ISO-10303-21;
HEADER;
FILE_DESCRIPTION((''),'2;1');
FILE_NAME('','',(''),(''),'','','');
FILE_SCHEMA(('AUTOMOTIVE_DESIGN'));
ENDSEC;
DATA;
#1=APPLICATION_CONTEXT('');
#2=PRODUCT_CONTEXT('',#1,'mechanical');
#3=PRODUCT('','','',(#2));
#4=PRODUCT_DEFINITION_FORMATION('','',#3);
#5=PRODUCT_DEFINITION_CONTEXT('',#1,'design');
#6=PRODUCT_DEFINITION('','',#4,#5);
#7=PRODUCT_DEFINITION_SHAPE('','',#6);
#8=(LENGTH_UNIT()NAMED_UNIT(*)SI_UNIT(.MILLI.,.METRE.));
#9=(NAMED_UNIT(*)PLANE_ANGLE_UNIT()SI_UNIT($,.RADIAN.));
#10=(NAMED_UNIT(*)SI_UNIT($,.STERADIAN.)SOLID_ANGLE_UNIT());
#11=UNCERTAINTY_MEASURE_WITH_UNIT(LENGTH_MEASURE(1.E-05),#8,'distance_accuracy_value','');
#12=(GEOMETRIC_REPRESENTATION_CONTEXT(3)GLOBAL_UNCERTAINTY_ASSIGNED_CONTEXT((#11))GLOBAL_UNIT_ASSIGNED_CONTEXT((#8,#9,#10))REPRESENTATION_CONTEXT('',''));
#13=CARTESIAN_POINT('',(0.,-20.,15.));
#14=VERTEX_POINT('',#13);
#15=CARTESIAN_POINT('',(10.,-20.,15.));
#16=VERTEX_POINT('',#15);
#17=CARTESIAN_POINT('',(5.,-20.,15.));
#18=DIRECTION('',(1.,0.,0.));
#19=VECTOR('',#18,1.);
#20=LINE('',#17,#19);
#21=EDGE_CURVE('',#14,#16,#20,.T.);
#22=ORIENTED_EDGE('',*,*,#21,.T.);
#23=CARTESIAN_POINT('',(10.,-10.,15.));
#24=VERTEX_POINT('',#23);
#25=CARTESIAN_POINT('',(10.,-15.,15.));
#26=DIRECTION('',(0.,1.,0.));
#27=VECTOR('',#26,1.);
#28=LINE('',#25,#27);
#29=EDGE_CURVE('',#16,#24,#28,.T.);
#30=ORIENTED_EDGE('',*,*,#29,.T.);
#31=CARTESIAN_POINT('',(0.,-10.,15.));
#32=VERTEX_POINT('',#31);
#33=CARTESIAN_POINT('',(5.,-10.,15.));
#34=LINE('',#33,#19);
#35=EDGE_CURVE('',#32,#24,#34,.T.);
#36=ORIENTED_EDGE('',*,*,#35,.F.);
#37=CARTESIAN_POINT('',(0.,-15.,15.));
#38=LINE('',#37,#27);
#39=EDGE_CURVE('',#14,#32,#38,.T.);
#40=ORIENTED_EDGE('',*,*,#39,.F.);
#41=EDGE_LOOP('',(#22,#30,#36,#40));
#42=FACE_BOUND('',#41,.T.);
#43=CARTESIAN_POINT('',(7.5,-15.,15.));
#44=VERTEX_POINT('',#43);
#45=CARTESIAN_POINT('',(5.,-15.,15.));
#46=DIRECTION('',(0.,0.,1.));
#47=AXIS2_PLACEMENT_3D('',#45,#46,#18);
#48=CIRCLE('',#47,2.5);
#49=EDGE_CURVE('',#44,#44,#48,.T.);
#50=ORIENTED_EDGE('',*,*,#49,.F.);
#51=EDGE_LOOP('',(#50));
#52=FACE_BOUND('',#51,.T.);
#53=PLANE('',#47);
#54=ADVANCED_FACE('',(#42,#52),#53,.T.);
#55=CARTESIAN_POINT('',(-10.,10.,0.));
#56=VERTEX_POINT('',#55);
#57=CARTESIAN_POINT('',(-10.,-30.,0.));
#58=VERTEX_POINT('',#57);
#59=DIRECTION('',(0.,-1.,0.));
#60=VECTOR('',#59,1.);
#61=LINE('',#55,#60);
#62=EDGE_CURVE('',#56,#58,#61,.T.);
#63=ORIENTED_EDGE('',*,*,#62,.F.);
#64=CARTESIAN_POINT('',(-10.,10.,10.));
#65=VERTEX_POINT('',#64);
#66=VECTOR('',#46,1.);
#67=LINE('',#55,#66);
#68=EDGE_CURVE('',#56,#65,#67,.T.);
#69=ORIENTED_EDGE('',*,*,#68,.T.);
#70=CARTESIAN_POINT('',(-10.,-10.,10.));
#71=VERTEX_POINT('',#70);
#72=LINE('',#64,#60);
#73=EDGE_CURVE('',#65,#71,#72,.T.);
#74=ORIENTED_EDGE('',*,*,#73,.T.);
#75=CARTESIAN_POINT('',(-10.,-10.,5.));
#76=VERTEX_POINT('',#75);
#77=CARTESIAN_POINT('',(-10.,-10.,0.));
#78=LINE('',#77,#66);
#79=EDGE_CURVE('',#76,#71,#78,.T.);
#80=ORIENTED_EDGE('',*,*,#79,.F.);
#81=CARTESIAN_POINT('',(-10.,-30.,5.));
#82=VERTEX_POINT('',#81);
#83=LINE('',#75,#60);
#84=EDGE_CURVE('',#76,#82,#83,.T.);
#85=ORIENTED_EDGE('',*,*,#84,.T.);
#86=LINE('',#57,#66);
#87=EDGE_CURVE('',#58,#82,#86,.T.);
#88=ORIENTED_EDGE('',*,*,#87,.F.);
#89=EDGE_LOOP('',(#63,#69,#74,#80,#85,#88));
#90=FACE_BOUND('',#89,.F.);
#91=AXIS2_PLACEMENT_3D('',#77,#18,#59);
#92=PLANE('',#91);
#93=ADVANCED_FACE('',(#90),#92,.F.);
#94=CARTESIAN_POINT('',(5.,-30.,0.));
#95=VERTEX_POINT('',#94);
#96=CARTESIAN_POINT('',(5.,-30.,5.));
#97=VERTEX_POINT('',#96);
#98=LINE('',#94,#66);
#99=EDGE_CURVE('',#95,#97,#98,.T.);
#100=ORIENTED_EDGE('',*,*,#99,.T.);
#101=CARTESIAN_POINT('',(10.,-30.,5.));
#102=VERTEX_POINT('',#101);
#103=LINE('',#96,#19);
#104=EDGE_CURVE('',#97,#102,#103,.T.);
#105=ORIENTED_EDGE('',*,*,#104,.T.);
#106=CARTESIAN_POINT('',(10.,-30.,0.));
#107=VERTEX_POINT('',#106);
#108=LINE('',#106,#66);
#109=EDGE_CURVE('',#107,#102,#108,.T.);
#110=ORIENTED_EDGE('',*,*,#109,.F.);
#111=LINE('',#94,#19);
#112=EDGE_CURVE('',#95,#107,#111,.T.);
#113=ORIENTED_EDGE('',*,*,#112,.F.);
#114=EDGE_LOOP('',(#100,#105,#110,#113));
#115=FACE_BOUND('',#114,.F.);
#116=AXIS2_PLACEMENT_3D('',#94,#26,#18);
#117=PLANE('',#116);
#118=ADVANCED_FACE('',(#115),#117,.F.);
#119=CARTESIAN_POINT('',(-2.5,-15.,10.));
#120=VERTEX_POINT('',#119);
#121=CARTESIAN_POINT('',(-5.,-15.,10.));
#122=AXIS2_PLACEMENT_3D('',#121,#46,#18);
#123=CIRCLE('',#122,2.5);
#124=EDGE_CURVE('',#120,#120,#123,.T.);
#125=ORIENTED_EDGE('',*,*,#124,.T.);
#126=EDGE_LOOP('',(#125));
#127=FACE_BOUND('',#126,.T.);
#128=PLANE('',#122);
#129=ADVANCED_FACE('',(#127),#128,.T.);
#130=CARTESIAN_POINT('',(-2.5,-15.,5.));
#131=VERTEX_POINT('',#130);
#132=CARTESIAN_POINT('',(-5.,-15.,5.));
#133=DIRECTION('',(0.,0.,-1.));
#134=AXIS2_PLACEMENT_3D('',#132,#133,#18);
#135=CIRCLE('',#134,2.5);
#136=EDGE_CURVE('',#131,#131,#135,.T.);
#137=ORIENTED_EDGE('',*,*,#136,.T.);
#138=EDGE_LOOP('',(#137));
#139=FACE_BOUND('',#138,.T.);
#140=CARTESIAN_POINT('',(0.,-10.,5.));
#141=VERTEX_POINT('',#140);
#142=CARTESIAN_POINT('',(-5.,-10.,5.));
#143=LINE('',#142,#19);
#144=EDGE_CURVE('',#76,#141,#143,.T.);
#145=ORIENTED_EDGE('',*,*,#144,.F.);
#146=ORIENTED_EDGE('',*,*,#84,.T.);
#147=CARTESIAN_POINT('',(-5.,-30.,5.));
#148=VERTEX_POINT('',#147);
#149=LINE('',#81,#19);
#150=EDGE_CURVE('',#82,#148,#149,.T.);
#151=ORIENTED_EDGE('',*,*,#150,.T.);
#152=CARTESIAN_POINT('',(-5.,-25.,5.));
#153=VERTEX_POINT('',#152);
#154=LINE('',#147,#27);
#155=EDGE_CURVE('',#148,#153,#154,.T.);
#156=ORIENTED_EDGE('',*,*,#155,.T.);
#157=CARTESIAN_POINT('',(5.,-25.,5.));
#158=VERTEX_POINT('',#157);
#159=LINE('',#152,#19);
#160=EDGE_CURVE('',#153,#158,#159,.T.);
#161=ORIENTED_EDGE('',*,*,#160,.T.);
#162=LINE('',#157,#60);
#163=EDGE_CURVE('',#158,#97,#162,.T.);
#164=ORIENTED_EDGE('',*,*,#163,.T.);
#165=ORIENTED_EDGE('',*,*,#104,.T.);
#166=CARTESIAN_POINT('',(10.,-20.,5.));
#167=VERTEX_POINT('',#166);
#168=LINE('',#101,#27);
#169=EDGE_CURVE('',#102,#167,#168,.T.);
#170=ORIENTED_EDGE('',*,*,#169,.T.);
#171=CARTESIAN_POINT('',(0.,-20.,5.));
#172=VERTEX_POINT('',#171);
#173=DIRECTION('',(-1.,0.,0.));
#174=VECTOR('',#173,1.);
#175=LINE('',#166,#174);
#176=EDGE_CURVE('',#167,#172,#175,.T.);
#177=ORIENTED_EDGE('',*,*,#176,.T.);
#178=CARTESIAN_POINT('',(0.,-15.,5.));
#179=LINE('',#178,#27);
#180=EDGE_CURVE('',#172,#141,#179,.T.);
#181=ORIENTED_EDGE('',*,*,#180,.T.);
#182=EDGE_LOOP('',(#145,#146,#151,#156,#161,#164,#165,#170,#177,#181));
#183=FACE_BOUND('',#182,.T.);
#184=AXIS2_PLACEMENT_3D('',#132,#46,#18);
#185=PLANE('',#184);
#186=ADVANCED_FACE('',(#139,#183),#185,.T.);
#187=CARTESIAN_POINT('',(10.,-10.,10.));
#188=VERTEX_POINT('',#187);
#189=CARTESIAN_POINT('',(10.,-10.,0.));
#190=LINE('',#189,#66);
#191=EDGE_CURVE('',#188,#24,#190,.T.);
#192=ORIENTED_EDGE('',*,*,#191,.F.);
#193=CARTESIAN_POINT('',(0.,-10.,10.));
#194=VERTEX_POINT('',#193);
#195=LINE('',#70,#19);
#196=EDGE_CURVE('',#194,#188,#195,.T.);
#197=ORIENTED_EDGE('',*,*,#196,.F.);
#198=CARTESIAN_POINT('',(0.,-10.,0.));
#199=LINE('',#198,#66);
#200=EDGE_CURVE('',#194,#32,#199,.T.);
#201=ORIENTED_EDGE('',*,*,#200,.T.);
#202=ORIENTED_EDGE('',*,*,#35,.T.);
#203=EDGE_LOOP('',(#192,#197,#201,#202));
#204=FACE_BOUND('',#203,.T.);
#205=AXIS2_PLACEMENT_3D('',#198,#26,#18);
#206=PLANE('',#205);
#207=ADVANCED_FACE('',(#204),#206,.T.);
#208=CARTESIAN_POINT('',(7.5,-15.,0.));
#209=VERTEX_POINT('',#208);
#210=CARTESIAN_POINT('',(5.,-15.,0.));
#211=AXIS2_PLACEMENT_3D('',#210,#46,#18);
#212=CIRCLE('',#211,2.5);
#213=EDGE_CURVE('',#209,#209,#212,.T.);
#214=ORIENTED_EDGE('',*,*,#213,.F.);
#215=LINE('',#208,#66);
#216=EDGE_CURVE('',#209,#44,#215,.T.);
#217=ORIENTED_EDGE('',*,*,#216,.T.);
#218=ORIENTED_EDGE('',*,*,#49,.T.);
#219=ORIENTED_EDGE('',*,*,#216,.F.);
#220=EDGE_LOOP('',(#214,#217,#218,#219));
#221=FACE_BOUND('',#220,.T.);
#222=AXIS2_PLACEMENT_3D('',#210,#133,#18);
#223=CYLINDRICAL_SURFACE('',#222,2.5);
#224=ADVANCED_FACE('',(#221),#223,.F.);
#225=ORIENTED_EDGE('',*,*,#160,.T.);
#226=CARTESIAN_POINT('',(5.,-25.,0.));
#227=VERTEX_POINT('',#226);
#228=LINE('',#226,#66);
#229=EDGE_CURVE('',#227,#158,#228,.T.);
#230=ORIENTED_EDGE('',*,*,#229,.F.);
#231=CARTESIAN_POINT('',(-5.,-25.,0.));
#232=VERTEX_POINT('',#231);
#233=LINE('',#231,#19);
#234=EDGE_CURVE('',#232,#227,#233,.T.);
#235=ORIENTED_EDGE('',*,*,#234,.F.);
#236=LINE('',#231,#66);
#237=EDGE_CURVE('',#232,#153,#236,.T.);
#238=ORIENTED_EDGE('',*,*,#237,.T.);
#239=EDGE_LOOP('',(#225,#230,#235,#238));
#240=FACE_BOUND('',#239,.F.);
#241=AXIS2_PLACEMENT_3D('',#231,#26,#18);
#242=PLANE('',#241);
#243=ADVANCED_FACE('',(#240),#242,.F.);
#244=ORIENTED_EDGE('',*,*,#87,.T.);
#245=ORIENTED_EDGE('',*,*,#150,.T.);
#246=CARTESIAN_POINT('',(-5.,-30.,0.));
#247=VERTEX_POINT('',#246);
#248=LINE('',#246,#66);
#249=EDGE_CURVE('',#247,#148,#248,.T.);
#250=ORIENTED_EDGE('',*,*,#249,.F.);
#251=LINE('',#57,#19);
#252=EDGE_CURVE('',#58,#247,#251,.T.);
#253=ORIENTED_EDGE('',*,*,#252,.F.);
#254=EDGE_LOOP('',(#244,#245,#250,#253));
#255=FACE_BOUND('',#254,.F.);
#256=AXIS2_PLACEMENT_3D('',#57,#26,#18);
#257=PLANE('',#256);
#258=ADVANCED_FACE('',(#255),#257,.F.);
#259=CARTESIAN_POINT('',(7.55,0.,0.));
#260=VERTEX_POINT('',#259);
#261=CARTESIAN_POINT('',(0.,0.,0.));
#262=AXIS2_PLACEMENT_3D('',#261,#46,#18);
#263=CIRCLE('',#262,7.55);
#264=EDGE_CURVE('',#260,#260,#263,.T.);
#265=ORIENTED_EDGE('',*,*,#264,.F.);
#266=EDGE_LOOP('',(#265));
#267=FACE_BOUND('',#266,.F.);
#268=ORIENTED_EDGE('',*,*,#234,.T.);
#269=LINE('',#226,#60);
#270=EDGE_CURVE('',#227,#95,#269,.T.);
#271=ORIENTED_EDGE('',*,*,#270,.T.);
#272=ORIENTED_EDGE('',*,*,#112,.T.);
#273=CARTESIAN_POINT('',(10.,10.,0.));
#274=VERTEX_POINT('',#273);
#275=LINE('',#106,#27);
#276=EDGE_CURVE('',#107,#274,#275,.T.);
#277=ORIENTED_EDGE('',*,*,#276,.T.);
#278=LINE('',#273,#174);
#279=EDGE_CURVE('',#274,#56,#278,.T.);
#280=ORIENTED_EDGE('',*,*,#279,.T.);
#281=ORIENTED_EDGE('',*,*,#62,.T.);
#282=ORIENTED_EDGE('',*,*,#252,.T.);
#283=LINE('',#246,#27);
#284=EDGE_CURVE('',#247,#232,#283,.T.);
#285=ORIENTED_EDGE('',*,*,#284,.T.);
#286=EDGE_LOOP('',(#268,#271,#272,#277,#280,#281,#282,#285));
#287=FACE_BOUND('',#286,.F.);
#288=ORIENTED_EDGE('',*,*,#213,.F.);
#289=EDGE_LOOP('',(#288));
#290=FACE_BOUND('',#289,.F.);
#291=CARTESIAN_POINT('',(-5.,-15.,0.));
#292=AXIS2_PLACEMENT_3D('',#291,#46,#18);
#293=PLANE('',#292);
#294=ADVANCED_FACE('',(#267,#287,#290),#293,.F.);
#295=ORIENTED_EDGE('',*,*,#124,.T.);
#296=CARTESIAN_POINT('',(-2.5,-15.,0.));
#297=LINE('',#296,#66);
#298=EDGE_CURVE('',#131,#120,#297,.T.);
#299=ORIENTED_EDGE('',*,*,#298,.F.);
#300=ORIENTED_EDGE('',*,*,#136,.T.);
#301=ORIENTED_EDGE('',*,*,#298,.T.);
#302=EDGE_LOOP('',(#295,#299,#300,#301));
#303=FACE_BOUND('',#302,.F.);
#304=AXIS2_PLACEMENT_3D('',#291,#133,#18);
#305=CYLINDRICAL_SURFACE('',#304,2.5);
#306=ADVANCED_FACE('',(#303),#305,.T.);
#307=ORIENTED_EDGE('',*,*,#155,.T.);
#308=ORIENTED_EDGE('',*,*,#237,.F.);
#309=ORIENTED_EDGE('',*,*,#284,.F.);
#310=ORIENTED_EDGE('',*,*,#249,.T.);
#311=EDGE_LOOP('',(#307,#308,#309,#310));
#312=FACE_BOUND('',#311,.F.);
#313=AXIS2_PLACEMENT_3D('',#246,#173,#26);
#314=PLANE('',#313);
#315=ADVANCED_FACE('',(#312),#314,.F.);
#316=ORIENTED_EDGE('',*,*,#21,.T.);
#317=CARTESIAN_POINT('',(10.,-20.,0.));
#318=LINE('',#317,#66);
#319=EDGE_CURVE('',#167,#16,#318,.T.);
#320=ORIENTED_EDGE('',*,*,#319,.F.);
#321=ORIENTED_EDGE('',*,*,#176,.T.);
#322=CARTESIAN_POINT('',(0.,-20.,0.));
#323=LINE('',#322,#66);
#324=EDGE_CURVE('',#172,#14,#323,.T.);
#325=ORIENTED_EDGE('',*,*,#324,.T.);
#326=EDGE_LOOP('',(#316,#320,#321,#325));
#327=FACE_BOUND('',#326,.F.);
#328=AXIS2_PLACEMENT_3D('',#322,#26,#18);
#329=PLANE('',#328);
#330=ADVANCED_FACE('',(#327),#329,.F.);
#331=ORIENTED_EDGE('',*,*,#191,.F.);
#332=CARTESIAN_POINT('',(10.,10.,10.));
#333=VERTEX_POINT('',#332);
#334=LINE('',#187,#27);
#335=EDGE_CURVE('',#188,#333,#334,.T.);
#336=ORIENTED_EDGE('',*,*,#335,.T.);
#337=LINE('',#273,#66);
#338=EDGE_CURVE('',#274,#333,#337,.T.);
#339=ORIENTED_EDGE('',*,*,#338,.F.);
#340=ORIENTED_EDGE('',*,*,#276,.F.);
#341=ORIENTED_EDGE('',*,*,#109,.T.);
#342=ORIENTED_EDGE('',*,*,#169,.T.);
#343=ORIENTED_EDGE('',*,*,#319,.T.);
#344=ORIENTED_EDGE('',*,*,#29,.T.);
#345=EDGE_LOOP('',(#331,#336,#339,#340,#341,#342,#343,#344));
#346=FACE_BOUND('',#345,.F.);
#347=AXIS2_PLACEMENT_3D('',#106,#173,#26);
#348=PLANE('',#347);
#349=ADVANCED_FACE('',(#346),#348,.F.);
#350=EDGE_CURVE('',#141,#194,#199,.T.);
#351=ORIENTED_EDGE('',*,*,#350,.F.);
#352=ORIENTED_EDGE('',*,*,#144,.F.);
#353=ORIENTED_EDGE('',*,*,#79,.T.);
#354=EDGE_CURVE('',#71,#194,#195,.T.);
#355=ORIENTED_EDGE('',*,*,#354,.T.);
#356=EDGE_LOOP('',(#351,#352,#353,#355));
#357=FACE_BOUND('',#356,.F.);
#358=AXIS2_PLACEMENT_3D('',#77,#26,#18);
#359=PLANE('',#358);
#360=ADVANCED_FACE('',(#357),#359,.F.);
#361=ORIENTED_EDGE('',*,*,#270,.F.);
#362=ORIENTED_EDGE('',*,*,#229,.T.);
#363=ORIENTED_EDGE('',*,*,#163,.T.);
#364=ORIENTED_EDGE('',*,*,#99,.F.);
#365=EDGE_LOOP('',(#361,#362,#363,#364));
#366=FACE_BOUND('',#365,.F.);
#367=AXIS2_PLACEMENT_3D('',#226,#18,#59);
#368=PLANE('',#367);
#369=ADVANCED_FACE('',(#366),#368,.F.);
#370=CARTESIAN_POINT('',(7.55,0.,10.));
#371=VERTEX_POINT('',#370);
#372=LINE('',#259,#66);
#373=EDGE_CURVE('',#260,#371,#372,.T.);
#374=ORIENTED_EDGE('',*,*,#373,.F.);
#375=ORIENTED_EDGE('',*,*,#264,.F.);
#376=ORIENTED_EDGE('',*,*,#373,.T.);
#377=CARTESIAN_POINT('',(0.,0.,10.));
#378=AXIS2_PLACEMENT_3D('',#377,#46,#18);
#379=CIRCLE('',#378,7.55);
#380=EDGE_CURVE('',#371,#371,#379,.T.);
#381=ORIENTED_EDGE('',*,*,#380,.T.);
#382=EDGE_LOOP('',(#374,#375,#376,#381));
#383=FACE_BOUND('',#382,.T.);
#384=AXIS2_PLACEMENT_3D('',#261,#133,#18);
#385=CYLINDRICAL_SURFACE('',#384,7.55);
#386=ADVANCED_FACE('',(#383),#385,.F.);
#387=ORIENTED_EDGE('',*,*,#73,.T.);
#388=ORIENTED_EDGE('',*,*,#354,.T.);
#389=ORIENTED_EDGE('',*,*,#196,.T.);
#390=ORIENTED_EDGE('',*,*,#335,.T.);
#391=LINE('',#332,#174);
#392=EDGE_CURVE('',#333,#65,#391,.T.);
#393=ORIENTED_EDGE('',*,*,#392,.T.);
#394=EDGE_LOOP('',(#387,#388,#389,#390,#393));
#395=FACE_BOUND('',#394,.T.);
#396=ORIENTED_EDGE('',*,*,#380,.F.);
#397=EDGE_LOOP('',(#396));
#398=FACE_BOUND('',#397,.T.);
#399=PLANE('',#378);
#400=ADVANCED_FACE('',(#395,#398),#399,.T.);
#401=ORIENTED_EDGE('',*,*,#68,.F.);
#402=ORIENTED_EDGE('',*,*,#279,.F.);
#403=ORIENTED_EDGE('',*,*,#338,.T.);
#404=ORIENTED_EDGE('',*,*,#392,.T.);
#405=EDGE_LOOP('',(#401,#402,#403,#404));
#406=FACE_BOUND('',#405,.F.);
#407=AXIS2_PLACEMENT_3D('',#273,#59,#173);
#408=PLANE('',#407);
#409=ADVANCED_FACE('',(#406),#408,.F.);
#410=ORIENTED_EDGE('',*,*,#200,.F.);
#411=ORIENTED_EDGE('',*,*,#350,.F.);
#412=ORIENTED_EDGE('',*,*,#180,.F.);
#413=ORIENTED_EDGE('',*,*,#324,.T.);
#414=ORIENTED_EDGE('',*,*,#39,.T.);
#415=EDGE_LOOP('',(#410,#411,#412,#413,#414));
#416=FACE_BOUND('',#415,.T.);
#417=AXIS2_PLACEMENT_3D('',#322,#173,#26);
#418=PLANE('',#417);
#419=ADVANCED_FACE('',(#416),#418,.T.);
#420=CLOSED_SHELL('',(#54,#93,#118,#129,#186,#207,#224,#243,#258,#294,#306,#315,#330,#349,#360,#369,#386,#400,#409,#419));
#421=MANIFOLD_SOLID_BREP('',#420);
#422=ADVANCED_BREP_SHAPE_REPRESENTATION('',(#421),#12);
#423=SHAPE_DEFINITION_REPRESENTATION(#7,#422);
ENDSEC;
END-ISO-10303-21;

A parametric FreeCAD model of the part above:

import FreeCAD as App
import Part
import Sketcher
from FreeCAD import Vector
Q = App.Units.Quantity

doc = App.newDocument("Part")
body = doc.addObject("PartDesign::Body", "Body")

# Sketch on XY plane
sketch1 = body.newObject("Sketcher::SketchObject", "Sketch")
sketch1.AttachmentSupport = (doc.getObject("XY_Plane"), [""])
sketch1.MapMode = "FlatFace"
sketch1.addGeometry([
    Part.LineSegment(Vector(10, -10, 0), Vector(10, 10, 0)),  # 0
    Part.LineSegment(Vector(10, 10, 0), Vector(-10, 10, 0)),  # 1
    Part.LineSegment(Vector(-10, 10, 0), Vector(-10, -10, 0)),  # 2
    Part.LineSegment(Vector(-10, -10, 0), Vector(10, -10, 0)),  # 3
    Part.Circle(Vector(0, 0, 0), Vector(0, 0, 1), 8),  # 4
], False)
sketch1.addConstraint([
    Sketcher.Constraint("Coincident", 0, 2, 1, 1),
    Sketcher.Constraint("Coincident", 1, 2, 2, 1),
    Sketcher.Constraint("Coincident", 2, 2, 3, 1),
    Sketcher.Constraint("Coincident", 3, 2, 0, 1),
    Sketcher.Constraint("Vertical", 0),
    Sketcher.Constraint("Horizontal", 1),
    Sketcher.Constraint("Vertical", 2),
    Sketcher.Constraint("Horizontal", 3),
    Sketcher.Constraint("Coincident", 4, 3, -1, 1),
    Sketcher.Constraint("Symmetric", 0, 2, 2, 2, -1, 1),
    Sketcher.Constraint("Equal", 3, 0),
    Sketcher.Constraint("Diameter", 4, Q("15.1 mm")),
    Sketcher.Constraint("DistanceX", 1, 2, 1, 1, Q("20 mm")),
])
pad1 = body.newObject("PartDesign::Pad", "Pad")
pad1.Profile = sketch1
pad1.Length = 10

# Sketch on XY plane
sketch2 = body.newObject("Sketcher::SketchObject", "Sketch001")
sketch2.AttachmentSupport = (doc.getObject("XY_Plane"), [""])
sketch2.MapMode = "FlatFace"
sketch2.addGeometry([
    Part.LineSegment(Vector(-10, -10, 0), Vector(-10, -30, 0)),  # 0
    Part.LineSegment(Vector(-10, -30, 0), Vector(-5, -30, 0)),  # 1
    Part.LineSegment(Vector(-5, -30, 0), Vector(-5, -25, 0)),  # 2
    Part.LineSegment(Vector(-5, -25, 0), Vector(5, -25, 0)),  # 3
    Part.LineSegment(Vector(5, -25, 0), Vector(5, -30, 0)),  # 4
    Part.LineSegment(Vector(5, -30, 0), Vector(10, -30, 0)),  # 5
    Part.LineSegment(Vector(10, -30, 0), Vector(10, -20, 0)),  # 6
    Part.LineSegment(Vector(10, -20, 0), Vector(0, -20, 0)),  # 7
    Part.LineSegment(Vector(0, -20, 0), Vector(0, -10, 0)),  # 8
    Part.LineSegment(Vector(0, -10, 0), Vector(-10, -10, 0)),  # 9
], False)
sketch2.addConstraint([
    Sketcher.Constraint("Coincident", 0, 2, 1, 1),
    Sketcher.Constraint("Coincident", 1, 2, 2, 1),
    Sketcher.Constraint("Coincident", 2, 2, 3, 1),
    Sketcher.Constraint("Coincident", 3, 2, 4, 1),
    Sketcher.Constraint("Coincident", 4, 2, 5, 1),
    Sketcher.Constraint("Coincident", 5, 2, 6, 1),
    Sketcher.Constraint("Coincident", 6, 2, 7, 1),
    Sketcher.Constraint("Coincident", 7, 2, 8, 1),
    Sketcher.Constraint("Coincident", 8, 2, 9, 1),
    Sketcher.Constraint("Coincident", 9, 2, 0, 1),
    Sketcher.Constraint("Vertical", 0),
    Sketcher.Constraint("Horizontal", 1),
    Sketcher.Constraint("Vertical", 2),
    Sketcher.Constraint("Horizontal", 3),
    Sketcher.Constraint("Vertical", 4),
    Sketcher.Constraint("Horizontal", 5),
    Sketcher.Constraint("Vertical", 6),
    Sketcher.Constraint("Horizontal", 7),
    Sketcher.Constraint("Vertical", 8),
    Sketcher.Constraint("Horizontal", 9),
    Sketcher.Constraint("Symmetric", 1, 2, 4, 2, -2),
    Sketcher.Constraint("PointOnObject", 7, 2, -2),
    Sketcher.Constraint("Equal", 1, 5),
    Sketcher.Constraint("Equal", 3, 7),
    Sketcher.Constraint("Equal", 5, 2),
    Sketcher.Constraint("Equal", 9, 6),
    Sketcher.Constraint("Equal", 6, 8),
    Sketcher.Constraint("DistanceX", 1, 1, 1, 2, Q("5 mm")),
    Sketcher.Constraint("DistanceY", 0, 2, -1, 1, Q("30 mm")),
])
pad2 = body.newObject("PartDesign::Pad", "Pad001")
pad2.Profile = sketch2
pad2.Length = 5

# Sketch on XY plane
sketch3 = body.newObject("Sketcher::SketchObject", "Sketch002")
sketch3.AttachmentSupport = (doc.getObject("XY_Plane"), [""])
sketch3.MapMode = "FlatFace"
sketch3.addGeometry([
    Part.LineSegment(Vector(0, -10, 0), Vector(0, -20, 0)),  # 0
    Part.LineSegment(Vector(0, -20, 0), Vector(10, -20, 0)),  # 1
    Part.LineSegment(Vector(10, -20, 0), Vector(10, -10, 0)),  # 2
    Part.LineSegment(Vector(10, -10, 0), Vector(0, -10, 0)),  # 3
    Part.Circle(Vector(5, -15, 0), Vector(0, 0, 1), 2.5),  # 4
], False)
sketch3.addConstraint([
    Sketcher.Constraint("Coincident", 0, 2, 1, 1),
    Sketcher.Constraint("Coincident", 1, 2, 2, 1),
    Sketcher.Constraint("Coincident", 2, 2, 3, 1),
    Sketcher.Constraint("Coincident", 3, 2, 0, 1),
    Sketcher.Constraint("Vertical", 0),
    Sketcher.Constraint("Horizontal", 1),
    Sketcher.Constraint("Vertical", 2),
    Sketcher.Constraint("Horizontal", 3),
    Sketcher.Constraint("PointOnObject", 0, 2, -2),
    Sketcher.Constraint("Equal", 3, 0),
    Sketcher.Constraint("Diameter", 4, Q("5 mm")),
    Sketcher.Constraint("DistanceX", 1, 1, 1, 2, Q("10 mm")),
    Sketcher.Constraint("DistanceX", -1, 1, 4, 3, Q("5 mm")),
    Sketcher.Constraint("DistanceY", 4, 3, -1, 1, Q("15 mm")),
    Sketcher.Constraint("DistanceY", 0, 2, -1, 1, Q("20 mm")),
])
pad3 = body.newObject("PartDesign::Pad", "Pad002")
pad3.Profile = sketch3
pad3.Length = 15

# Sketch on XY plane
sketch4 = body.newObject("Sketcher::SketchObject", "Sketch003")
sketch4.AttachmentSupport = (doc.getObject("XY_Plane"), [""])
sketch4.MapMode = "FlatFace"
sketch4.addGeometry(Part.Circle(Vector(-5, -15, 0), Vector(0, 0, 1), 2.5), False)
sketch4.addConstraint([
    Sketcher.Constraint("Diameter", 0, Q("5 mm")),
    Sketcher.Constraint("DistanceX", 0, 3, -1, 1, Q("5 mm")),
    Sketcher.Constraint("DistanceY", 0, 3, -1, 1, Q("15 mm")),
])
pad4 = body.newObject("PartDesign::Pad", "Pad003")
pad4.Profile = sketch4
pad4.Length = 10

doc.recompute()
